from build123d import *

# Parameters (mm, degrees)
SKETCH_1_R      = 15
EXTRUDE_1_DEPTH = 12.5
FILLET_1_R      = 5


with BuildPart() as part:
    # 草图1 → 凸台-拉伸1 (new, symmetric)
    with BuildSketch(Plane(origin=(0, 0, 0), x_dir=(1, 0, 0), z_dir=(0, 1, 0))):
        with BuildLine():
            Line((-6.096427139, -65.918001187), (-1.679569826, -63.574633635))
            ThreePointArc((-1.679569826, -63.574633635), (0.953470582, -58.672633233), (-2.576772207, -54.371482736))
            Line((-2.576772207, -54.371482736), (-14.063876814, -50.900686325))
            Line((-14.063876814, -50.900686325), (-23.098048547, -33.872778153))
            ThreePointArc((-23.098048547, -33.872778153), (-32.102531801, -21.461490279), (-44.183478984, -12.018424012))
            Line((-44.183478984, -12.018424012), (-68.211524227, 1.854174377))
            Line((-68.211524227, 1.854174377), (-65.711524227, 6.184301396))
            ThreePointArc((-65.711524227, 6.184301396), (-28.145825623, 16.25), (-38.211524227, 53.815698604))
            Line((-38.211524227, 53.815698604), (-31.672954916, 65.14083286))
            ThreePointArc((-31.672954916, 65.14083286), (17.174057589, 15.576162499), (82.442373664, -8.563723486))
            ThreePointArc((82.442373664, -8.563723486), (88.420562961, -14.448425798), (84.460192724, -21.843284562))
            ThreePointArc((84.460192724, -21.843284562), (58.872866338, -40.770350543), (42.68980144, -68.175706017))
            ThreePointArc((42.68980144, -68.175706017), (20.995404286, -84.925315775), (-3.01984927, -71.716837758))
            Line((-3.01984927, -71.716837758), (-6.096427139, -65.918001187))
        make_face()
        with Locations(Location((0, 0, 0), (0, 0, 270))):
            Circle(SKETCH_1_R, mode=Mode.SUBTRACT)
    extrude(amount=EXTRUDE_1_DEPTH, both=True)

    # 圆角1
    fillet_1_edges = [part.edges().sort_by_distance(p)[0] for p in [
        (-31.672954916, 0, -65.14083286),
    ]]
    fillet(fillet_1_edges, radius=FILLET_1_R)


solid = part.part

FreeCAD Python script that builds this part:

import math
import FreeCAD as App
import Part
import Sketcher
from FreeCAD import Vector
Q = App.Units.Quantity


def edges_at(feature, points):
    """Names of the edges that pass closest to the given points."""
    edges = feature.Shape.Edges
    near = lambda p: min(range(len(edges)), key=lambda i: edges[i].distToShape(Part.Vertex(*p))[0])
    return sorted({f"Edge{near(p) + 1}" for p in points})

doc = App.newDocument("Part")
body = doc.addObject("PartDesign::Body", "Body")

# Sketch on XZ plane
sketch1 = body.newObject("Sketcher::SketchObject", "Sketch")
sketch1.AttachmentSupport = (doc.getObject("XZ_Plane"), [""])
sketch1.MapMode = "FlatFace"
sketch1.addGeometry([
    Part.LineSegment(Vector(-2, 64, 0), Vector(-6, 66, 0)),  # 0
    Part.LineSegment(Vector(-6, 66, 0), Vector(-3, 72, 0)),  # 1
    Part.ArcOfCircle(Part.Circle(Vector(19, 60, 0), Vector(0, 0, 1), 25), math.radians(19), math.radians(152)),  # 2
    Part.ArcOfCircle(Part.Circle(Vector(118, 94, 0), Vector(0, 0, 1), 80), math.radians(-161), math.radians(-115)),  # 3
    Part.ArcOfCircle(Part.Circle(Vector(82, 16, 0), Vector(0, 0, 1), 7), math.radians(-82), math.radians(65)),  # 4
    Part.ArcOfCircle(Part.Circle(Vector(104, -150, 0), Vector(0, 0, 1), 160), math.radians(98), math.radians(148)),  # 5
    Part.LineSegment(Vector(-32, -65, 0), Vector(-38, -54, 0)),  # 6
    Part.ArcOfCircle(Part.Circle(Vector(-52, -30, 0), Vector(0, 0, 1), 28), math.radians(-60), math.radians(120)),  # 7
    Part.LineSegment(Vector(-66, -6, 0), Vector(-68, -2, 0)),  # 8
    Part.LineSegment(Vector(-68, -2, 0), Vector(-44, 12, 0)),  # 9
    Part.ArcOfCircle(Part.Circle(Vector(-72, 60, 0), Vector(0, 0, 1), 55), math.radians(-60), math.radians(-28)),  # 10
    Part.LineSegment(Vector(-23, 34, 0), Vector(-14, 51, 0)),  # 11
    Part.LineSegment(Vector(-14, 51, 0), Vector(-3, 54, 0)),  # 12
    Part.ArcOfCircle(Part.Circle(Vector(-4, 59, 0), Vector(0, 0, 1), 5), math.radians(-73), math.radians(62)),  # 13
    Part.Circle(Vector(0, 0, 0), Vector(0, 0, 1), 15),  # 14
], False)
sketch1.addConstraint([
    Sketcher.Constraint("Coincident", 0, 2, 1, 1),
    Sketcher.Constraint("Tangent", 1, 2, 2, 2),
    Sketcher.Constraint("Tangent", 2, 1, 3, 1),
    Sketcher.Constraint("Tangent", 3, 2, 4, 2),
    Sketcher.Constraint("Tangent", 4, 1, 5, 1),
    Sketcher.Constraint("Coincident", 5, 2, 6, 1),
    Sketcher.Constraint("Coincident", 6, 2, 7, 1),
    Sketcher.Constraint("Coincident", 7, 2, 8, 1),
    Sketcher.Constraint("Coincident", 8, 2, 9, 1),
    Sketcher.Constraint("Tangent", 9, 2, 10, 1),
    Sketcher.Constraint("Tangent", 10, 2, 11, 1),
    Sketcher.Constraint("Coincident", 11, 2, 12, 1),
    Sketcher.Constraint("Tangent", 12, 2, 13, 1),
    Sketcher.Constraint("Tangent", 13, 2, 0, 1),
    Sketcher.Constraint("Coincident", 14, 3, -1, 1),
    Sketcher.Constraint("Perpendicular", 0, 1),
    Sketcher.Constraint("Parallel", 6, 8),
    Sketcher.Constraint("Perpendicular", 8, 9),
    Sketcher.Constraint("Parallel", 1, 11),
    Sketcher.Constraint("Equal", 0, 8),
    Sketcher.Constraint("Diameter", 14, Q("30 mm")),
    Sketcher.Constraint("Radius", 2, Q("25 mm")),
    Sketcher.Constraint("Radius", 3, Q("80 mm")),
    Sketcher.Constraint("Radius", 4, Q("7 mm")),
    Sketcher.Constraint("Radius", 5, Q("160 mm")),
    Sketcher.Constraint("Radius", 10, Q("55 mm")),
    Sketcher.Constraint("Radius", 13, Q("5 mm")),
    Sketcher.Constraint("Radius", 7, Q("27.5 mm")),
    Sketcher.Constraint("Angle", 6, Q("120 deg")),
    Sketcher.Constraint("Distance", 0, Q("5 mm")),
    Sketcher.Constraint("Distance", 12, Q("12 mm")),
    Sketcher.Constraint("DistanceY", -1, 1, 2, 3, Q("60 mm")),
    Sketcher.Constraint("DistanceY", 7, 3, -1, 1, Q("30 mm")),
    Sketcher.Constraint("DistanceX", 8, 2, 6, 2, Q("30 mm")),
    Sketcher.Constraint("DistanceX", -1, 1, 4, 3, Q("81.5 mm")),
    Sketcher.Constraint("DistanceY", -1, 1, 4, 3, Q("15.5 mm")),
    Sketcher.Constraint("DistanceX", 7, 3, 6, 2, Q("13.75 mm")),
    Sketcher.Constraint("DistanceY", -1, 1, 0, 2, Q("65.918001 mm")),
    Sketcher.Constraint("DistanceY", 10, 2, 13, 3, Q("25.284998 mm")),
    Sketcher.Constraint("DistanceX", -1, 1, 2, 1, Q("42.689801 mm")),
    Sketcher.Constraint("DistanceY", 8, 2, 9, 2, Q("13.872598 mm")),
    Sketcher.Constraint("DistanceX", 10, 2, 1, 2, Q("20.078199 mm")),
    Sketcher.Constraint("Distance", 6, Q("13.077139 mm")),
])
pad1 = body.newObject("PartDesign::Pad", "Pad")
pad1.Profile = sketch1
pad1.Length = 25
pad1.Midplane = True
doc.recompute()

fillet = body.newObject("PartDesign::Fillet", "Fillet")
fillet.Base = (pad1, edges_at(pad1, [(-31.673, 0, -65.141)]))
fillet.Radius = 5

doc.recompute()
